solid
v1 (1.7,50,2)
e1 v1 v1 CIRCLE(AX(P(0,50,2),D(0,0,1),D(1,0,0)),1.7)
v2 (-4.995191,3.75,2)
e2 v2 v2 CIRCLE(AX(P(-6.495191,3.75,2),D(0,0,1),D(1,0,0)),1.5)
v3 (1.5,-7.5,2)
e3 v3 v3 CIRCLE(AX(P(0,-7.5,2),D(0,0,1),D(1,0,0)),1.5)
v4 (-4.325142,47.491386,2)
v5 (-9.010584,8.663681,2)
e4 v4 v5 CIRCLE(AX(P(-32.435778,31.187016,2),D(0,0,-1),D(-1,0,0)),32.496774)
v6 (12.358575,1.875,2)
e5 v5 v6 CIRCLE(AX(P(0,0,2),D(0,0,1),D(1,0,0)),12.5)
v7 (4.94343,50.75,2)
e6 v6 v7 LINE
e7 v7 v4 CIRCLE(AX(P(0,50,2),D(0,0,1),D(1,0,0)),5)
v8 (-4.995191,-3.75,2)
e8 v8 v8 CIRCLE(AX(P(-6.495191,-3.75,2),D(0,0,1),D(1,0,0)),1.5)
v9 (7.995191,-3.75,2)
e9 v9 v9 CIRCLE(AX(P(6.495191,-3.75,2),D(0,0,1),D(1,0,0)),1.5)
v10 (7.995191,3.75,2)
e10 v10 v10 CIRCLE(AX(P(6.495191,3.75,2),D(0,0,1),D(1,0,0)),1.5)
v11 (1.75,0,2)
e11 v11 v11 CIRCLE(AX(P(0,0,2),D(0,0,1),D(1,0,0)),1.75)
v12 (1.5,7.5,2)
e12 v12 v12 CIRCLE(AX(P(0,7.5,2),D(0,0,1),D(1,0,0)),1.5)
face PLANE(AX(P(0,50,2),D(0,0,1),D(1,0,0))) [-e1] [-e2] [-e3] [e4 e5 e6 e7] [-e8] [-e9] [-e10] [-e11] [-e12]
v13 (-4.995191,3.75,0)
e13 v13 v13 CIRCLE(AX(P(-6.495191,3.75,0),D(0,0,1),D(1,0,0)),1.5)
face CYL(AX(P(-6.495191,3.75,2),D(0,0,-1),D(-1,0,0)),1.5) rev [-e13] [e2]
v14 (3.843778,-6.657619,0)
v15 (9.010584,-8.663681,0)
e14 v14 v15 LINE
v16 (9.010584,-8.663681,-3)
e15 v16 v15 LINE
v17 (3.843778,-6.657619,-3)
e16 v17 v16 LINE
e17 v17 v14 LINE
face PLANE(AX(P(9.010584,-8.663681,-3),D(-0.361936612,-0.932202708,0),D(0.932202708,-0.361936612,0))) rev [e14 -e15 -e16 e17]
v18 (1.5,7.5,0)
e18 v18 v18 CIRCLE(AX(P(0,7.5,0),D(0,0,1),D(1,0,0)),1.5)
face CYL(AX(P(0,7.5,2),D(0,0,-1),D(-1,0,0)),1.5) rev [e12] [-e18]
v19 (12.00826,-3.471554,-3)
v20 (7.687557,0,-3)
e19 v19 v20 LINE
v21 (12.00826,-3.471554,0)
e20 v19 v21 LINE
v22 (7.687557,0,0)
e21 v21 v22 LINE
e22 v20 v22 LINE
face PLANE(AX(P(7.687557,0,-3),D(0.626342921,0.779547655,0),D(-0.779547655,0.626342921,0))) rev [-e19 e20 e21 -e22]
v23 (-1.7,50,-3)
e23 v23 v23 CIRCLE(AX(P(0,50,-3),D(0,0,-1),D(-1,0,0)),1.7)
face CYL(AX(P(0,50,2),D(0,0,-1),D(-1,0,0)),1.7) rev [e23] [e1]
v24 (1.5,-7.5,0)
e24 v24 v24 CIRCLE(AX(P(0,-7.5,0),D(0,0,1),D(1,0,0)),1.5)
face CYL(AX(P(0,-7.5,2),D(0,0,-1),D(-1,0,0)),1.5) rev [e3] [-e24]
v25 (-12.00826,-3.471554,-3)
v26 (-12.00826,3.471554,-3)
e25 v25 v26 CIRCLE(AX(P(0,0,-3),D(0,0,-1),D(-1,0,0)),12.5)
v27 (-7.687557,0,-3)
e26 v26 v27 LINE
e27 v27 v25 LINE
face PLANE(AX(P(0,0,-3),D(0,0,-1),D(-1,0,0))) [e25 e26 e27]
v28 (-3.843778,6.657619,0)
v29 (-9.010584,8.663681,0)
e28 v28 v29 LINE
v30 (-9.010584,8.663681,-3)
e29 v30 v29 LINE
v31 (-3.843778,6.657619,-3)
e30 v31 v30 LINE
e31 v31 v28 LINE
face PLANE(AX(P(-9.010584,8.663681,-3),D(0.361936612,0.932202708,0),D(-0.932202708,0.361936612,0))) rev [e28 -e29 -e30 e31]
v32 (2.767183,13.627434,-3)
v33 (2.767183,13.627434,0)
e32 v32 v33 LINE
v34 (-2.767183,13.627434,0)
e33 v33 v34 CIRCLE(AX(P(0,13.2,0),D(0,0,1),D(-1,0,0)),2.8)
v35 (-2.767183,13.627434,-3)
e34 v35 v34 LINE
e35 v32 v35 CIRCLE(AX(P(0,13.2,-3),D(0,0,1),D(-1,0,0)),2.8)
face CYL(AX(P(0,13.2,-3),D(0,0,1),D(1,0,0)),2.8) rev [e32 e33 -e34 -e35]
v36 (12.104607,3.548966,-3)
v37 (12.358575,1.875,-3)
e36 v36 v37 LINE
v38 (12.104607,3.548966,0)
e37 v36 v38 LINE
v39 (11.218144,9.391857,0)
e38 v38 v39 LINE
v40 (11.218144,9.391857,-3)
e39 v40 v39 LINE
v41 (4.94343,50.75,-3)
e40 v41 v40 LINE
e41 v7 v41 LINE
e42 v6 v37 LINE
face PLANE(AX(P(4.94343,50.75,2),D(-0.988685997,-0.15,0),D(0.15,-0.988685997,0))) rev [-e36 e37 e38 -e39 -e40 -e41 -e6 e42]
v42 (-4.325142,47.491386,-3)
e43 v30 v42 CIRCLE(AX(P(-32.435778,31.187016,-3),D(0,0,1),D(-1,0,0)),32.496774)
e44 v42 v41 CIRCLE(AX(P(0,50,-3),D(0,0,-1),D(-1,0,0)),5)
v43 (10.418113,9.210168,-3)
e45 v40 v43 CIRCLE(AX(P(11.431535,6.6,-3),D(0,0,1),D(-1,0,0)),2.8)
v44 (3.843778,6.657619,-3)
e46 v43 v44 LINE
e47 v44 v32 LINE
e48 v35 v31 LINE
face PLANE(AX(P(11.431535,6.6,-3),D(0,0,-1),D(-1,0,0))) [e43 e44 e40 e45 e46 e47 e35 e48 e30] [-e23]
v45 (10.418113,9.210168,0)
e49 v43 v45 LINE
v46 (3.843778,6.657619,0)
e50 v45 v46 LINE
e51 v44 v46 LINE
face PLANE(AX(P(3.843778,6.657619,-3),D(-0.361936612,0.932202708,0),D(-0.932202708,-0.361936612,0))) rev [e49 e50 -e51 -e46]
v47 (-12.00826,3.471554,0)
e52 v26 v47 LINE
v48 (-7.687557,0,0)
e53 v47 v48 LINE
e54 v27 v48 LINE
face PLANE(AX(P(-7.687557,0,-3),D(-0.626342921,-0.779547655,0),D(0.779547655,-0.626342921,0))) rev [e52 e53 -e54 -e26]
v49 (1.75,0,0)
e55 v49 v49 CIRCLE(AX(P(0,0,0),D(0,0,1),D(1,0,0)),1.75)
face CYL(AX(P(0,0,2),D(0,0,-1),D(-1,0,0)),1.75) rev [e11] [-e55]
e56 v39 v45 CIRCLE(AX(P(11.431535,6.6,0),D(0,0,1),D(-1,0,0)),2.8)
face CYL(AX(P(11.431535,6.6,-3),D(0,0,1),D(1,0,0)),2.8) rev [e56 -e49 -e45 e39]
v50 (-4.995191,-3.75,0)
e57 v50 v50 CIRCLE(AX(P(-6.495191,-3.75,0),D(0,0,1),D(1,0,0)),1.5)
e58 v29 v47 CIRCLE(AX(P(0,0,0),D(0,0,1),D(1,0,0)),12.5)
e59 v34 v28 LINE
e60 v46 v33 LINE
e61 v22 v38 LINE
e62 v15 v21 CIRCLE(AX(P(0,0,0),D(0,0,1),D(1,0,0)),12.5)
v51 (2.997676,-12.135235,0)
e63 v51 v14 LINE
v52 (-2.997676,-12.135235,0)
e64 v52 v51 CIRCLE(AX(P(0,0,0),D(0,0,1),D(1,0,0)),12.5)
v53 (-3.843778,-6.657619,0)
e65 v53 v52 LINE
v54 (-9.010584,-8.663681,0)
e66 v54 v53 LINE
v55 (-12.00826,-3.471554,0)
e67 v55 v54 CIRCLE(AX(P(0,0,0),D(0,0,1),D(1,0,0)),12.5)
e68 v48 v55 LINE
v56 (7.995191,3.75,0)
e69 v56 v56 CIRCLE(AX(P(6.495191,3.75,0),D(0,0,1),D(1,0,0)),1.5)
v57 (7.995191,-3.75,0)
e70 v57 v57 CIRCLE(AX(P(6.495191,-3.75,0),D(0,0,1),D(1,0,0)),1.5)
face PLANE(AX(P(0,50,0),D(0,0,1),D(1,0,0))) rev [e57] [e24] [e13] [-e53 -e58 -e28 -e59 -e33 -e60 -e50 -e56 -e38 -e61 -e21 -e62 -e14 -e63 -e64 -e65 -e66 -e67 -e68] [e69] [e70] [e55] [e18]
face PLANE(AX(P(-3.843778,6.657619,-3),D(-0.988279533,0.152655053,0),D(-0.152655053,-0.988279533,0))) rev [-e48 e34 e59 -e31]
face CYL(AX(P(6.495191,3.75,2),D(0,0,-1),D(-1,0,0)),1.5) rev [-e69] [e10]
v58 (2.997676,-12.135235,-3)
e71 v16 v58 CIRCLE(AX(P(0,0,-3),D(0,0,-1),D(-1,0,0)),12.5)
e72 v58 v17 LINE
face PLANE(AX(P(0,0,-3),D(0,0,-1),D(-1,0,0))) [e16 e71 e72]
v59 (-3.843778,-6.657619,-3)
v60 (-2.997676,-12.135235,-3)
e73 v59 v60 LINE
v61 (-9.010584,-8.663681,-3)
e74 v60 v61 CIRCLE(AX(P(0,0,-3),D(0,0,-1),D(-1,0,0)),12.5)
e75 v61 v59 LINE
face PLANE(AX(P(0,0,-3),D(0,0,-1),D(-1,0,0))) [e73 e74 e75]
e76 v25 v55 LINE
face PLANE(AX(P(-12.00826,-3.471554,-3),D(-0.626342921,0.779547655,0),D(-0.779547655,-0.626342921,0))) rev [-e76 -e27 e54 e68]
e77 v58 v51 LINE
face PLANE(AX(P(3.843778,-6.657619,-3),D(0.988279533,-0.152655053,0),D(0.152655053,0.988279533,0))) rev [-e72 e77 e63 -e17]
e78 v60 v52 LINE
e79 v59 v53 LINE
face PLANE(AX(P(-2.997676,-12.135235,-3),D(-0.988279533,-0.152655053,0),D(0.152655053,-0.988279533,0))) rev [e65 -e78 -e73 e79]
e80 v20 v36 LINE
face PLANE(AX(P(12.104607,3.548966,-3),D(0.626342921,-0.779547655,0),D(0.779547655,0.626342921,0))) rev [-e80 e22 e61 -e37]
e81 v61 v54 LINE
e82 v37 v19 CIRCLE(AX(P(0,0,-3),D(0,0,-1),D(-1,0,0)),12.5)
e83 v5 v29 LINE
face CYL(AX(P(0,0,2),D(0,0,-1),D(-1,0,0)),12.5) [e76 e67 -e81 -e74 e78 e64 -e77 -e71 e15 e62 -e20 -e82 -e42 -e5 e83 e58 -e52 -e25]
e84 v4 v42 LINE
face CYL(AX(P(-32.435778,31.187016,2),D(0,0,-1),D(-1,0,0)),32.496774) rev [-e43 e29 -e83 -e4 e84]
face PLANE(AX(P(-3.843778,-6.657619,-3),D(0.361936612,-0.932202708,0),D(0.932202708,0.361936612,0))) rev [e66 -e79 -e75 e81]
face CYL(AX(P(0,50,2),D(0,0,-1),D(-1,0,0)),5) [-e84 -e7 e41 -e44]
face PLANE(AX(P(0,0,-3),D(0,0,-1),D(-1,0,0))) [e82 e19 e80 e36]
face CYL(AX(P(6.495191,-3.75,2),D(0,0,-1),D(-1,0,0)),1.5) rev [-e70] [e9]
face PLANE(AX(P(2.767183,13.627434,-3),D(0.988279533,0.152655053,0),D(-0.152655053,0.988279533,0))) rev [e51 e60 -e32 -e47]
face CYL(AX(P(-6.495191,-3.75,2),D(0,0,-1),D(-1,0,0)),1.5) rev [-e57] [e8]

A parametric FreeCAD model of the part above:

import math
import FreeCAD as App
import Part
import Sketcher

doc = App.newDocument("Part")
body = doc.addObject("PartDesign::Body", "Body")

sketch1 = body.newObject("Sketcher::SketchObject", "Sketch")
sketch1.AttachmentSupport = (doc.getObject("XY_Plane"), [""])
sketch1.MapMode = "FlatFace"
sketch1.addGeometry([
    Part.LineSegment(App.Vector(12.4, 1.9, 0), App.Vector(4.9, 50.8, 0)),
    Part.ArcOfCircle(Part.Circle(App.Vector(0, 50, 0), App.Vector(0, 0, 1), 5), math.radians(9), math.radians(210)),
    Part.ArcOfCircle(Part.Circle(App.Vector(-32.4, 31.2, 0), App.Vector(0, 0, 1), 32.5), math.radians(-44), math.radians(30)),
    Part.ArcOfCircle(Part.Circle(App.Vector(0, 0, 0), App.Vector(0, 0, 1), 12.5), math.radians(136), math.radians(369)),
    Part.Circle(App.Vector(6.5, -3.8, 0), App.Vector(0, 0, 1), 1.5),
    Part.Circle(App.Vector(6.5, 3.8, 0), App.Vector(0, 0, 1), 1.5),
    Part.Circle(App.Vector(0, -7.5, 0), App.Vector(0, 0, 1), 1.5),
    Part.Circle(App.Vector(0, 0, 0), App.Vector(0, 0, 1), 1.8),
    Part.Circle(App.Vector(-6.5, -3.8, 0), App.Vector(0, 0, 1), 1.5),
    Part.Circle(App.Vector(-6.5, 3.8, 0), App.Vector(0, 0, 1), 1.5),
    Part.Circle(App.Vector(0, 7.5, 0), App.Vector(0, 0, 1), 1.5),
    Part.Circle(App.Vector(0, 50, 0), App.Vector(0, 0, 1), 1.7),
], False)
sketch1.addConstraint([
    Sketcher.Constraint("Tangent", 0, 2, 1, 1),
    Sketcher.Constraint("Tangent", 1, 2, 2, 2),
    Sketcher.Constraint("Tangent", 2, 1, 3, 1),
    Sketcher.Constraint("Tangent", 3, 2, 0, 1),
    Sketcher.Constraint("Coincident", 3, 3, -1, 1),
    Sketcher.Constraint("Coincident", 7, 3, -1, 1),
    Sketcher.Constraint("Coincident", 11, 3, 1, 3),
    Sketcher.Constraint("Equal", 4, 5),
    Sketcher.Constraint("Equal", 5, 6),
    Sketcher.Constraint("Equal", 6, 8),
    Sketcher.Constraint("Equal", 8, 9),
    Sketcher.Constraint("Equal", 9, 10),
    Sketcher.Constraint("Symmetric", 5, 3, 8, 3, -1, 1),
    Sketcher.Constraint("Symmetric", 4, 3, 9, 3, -1, 1),
    Sketcher.Constraint("Symmetric", 6, 3, 10, 3, -1, 1),
    Sketcher.Constraint("Symmetric", 4, 3, 8, 3, -2),
    Sketcher.Constraint("PointOnObject", 1, 3, -2),
    Sketcher.Constraint("PointOnObject", 6, 3, -2),
    Sketcher.Constraint("Diameter", 4, 3.0),
    Sketcher.Constraint("Radius", 1, 5.0),
    Sketcher.Constraint("Diameter", 7, 3.5),
    Sketcher.Constraint("Diameter", 11, 3.4),
    Sketcher.Constraint("Radius", 3, 12.5),
    Sketcher.Constraint("DistanceY", -1, 1, 1, 3, 50.0),
    Sketcher.Constraint("DistanceY", 5, 3, 0, 2, 47.0),
    Sketcher.Constraint("DistanceY", 6, 3, -1, 1, 7.5),
    Sketcher.Constraint("Radius", 2, 32.496774),
    Sketcher.Constraint("DistanceX", -1, 1, 4, 3, 6.495191),
])
pad1 = body.newObject("PartDesign::Pad", "Pad")
pad1.Profile = sketch1
pad1.Length = 2

sketch2 = body.newObject("Sketcher::SketchObject", "Sketch001")
sketch2.AttachmentSupport = (doc.getObject("XY_Plane"), [""])
sketch2.MapMode = "FlatFace"
sketch2.addGeometry([
    Part.LineSegment(App.Vector(12.1, 3.5, 0), App.Vector(12.4, 1.9, 0)),
    Part.ArcOfCircle(Part.Circle(App.Vector(0, 0, 0), App.Vector(0, 0, 1), 12.5), math.radians(-16), math.radians(9)),
    Part.LineSegment(App.Vector(12, -3.5, 0), App.Vector(7.7, 0, 0)),
    Part.LineSegment(App.Vector(7.7, 0, 0), App.Vector(12.1, 3.5, 0)),
    Part.LineSegment(App.Vector(4.9, 50.8, 0), App.Vector(11.2, 9.4, 0)),
    Part.ArcOfCircle(Part.Circle(App.Vector(11.4, 6.6, 0), App.Vector(0, 0, 1), 2.8), math.radians(94.37), math.radians(111.22)),
    Part.LineSegment(App.Vector(10.4, 9.2, 0), App.Vector(3.8, 6.7, 0)),
    Part.LineSegment(App.Vector(3.8, 6.7, 0), App.Vector(2.8, 13.6, 0)),
    Part.ArcOfCircle(Part.Circle(App.Vector(0, 13.2, 0), App.Vector(0, 0, 1), 2.8), math.radians(9), math.radians(171)),
    Part.LineSegment(App.Vector(-2.8, 13.6, 0), App.Vector(-3.8, 6.7, 0)),
    Part.LineSegment(App.Vector(-3.8, 6.7, 0), App.Vector(-9, 8.7, 0)),
    Part.ArcOfCircle(Part.Circle(App.Vector(-32.4, 31.2, 0), App.Vector(0, 0, 1), 32.5), math.radians(-44), math.radians(30)),
    Part.ArcOfCircle(Part.Circle(App.Vector(0, 50, 0), App.Vector(0, 0, 1), 5), math.radians(9), math.radians(210)),
    Part.Circle(App.Vector(0, 50, 0), App.Vector(0, 0, 1), 1.7),
    Part.LineSegment(App.Vector(-12, 3.5, 0), App.Vector(-7.7, 0, 0)),
    Part.LineSegment(App.Vector(-7.7, 0, 0), App.Vector(-12, -3.5, 0)),
    Part.ArcOfCircle(Part.Circle(App.Vector(0, 0, 0), App.Vector(0, 0, 1), 12.5), math.radians(164), math.radians(196)),
    Part.LineSegment(App.Vector(-9, -8.7, 0), App.Vector(-3.8, -6.7, 0)),
    Part.LineSegment(App.Vector(-3.8, -6.7, 0), App.Vector(-3, -12.1, 0)),
    Part.ArcOfCircle(Part.Circle(App.Vector(0, 0, 0), App.Vector(0, 0, 1), 12.5), math.radians(-136), math.radians(-104)),
    Part.LineSegment(App.Vector(3, -12.1, 0), App.Vector(3.8, -6.7, 0)),
    Part.LineSegment(App.Vector(3.8, -6.7, 0), App.Vector(9, -8.7, 0)),
    Part.ArcOfCircle(Part.Circle(App.Vector(0, 0, 0), App.Vector(0, 0, 1), 12.5), math.radians(-76), math.radians(-44)),
], False)
sketch2.addConstraint([
    Sketcher.Constraint("Tangent", 0, 2, 1, 2),
    Sketcher.Constraint("Coincident", 1, 1, 2, 1),
    Sketcher.Constraint("Coincident", 2, 2, 3, 1),
    Sketcher.Constraint("Coincident", 3, 2, 0, 1),
    Sketcher.Constraint("Coincident", 4, 2, 5, 1),
    Sketcher.Constraint("Tangent", 5, 2, 6, 1),
    Sketcher.Constraint("Coincident", 6, 2, 7, 1),
    Sketcher.Constraint("Tangent", 7, 2, 8, 1),
    Sketcher.Constraint("Tangent", 8, 2, 9, 1),
    Sketcher.Constraint("Coincident", 9, 2, 10, 1),
    Sketcher.Constraint("Coincident", 10, 2, 11, 1),
    Sketcher.Constraint("Tangent", 11, 2, 12, 2),
    Sketcher.Constraint("Tangent", 12, 1, 4, 1),
    Sketcher.Constraint("Coincident", 14, 2, 15, 1),
    Sketcher.Constraint("Coincident", 15, 2, 16, 2),
    Sketcher.Constraint("Coincident", 16, 1, 14, 1),
    Sketcher.Constraint("Coincident", 17, 2, 18, 1),
    Sketcher.Constraint("Coincident", 18, 2, 19, 2),
    Sketcher.Constraint("Coincident", 19, 1, 17, 1),
    Sketcher.Constraint("Coincident", 20, 2, 21, 1),
    Sketcher.Constraint("Coincident", 21, 2, 22, 2),
    Sketcher.Constraint("Coincident", 22, 1, 20, 1),
    Sketcher.Constraint("Coincident", 1, 3, -1, 1),
    Sketcher.Constraint("Coincident", 16, 3, -1, 1),
    Sketcher.Constraint("Coincident", 19, 3, -1, 1),
    Sketcher.Constraint("Coincident", 22, 3, -1, 1),
    Sketcher.Constraint("Coincident", 13, 3, 12, 3),
    Sketcher.Constraint("Equal", 5, 8),
    Sketcher.Constraint("Equal", 1, 16),
    Sketcher.Constraint("Equal", 16, 19),
    Sketcher.Constraint("Equal", 19, 22),
    Sketcher.Constraint("Symmetric", 2, 2, 14, 2, -1, 1),
    Sketcher.Constraint("Symmetric", 6, 2, 17, 2, -1, 1),
    Sketcher.Constraint("Symmetric", 9, 2, 20, 2, -1, 1),
    Sketcher.Constraint("Symmetric", 10, 2, 21, 2, -1, 1),
    Sketcher.Constraint("Symmetric", 7, 2, 8, 2, -2),
    Sketcher.Constraint("PointOnObject", 12, 3, -2),
    Sketcher.Constraint("PointOnObject", 2, 2, -1),
    Sketcher.Constraint("Parallel", 0, 4),
    Sketcher.Constraint("Parallel", 2, 14),
    Sketcher.Constraint("Parallel", 3, 15),
    Sketcher.Constraint("Parallel", 6, 17),
    Sketcher.Constraint("Parallel", 7, 18),
    Sketcher.Constraint("Parallel", 9, 20),
    Sketcher.Constraint("Horizontal", 6, 2, 9, 2),
    Sketcher.Constraint("Horizontal", 1, 1, 15, 2),
    Sketcher.Constraint("Horizontal", 19, 1, 21, 2),
    Sketcher.Constraint("Equal", 6, 7),
    Sketcher.Constraint("Equal", 2, 10),
    Sketcher.Constraint("Equal", 17, 18),
    Sketcher.Constraint("Radius", 12, 5.0),
    Sketcher.Constraint("Diameter", 13, 3.4),
    Sketcher.Constraint("Radius", 1, 12.5),
    Sketcher.Constraint("Radius", 5, 2.8),
    Sketcher.Constraint("DistanceY", -1, 1, 12, 3, 50.0),
    Sketcher.Constraint("DistanceY", -1, 1, 5, 3, 6.6),
    Sketcher.Constraint("DistanceY", -1, 1, 8, 3, 13.2),
    Sketcher.Constraint("DistanceY", -1, 1, 12, 1, 50.75),
    Sketcher.Constraint("Radius", 11, 32.496774),
    Sketcher.Constraint("DistanceY", 3, 2, 5, 2, 5.661202),
    Sketcher.Constraint("DistanceX", 10, 2, 8, 2, 6.243402),
])
pad2 = body.newObject("PartDesign::Pad", "Pad001")
pad2.Profile = sketch2
pad2.Length = 3
pad2.Reversed = True

doc.recompute()
